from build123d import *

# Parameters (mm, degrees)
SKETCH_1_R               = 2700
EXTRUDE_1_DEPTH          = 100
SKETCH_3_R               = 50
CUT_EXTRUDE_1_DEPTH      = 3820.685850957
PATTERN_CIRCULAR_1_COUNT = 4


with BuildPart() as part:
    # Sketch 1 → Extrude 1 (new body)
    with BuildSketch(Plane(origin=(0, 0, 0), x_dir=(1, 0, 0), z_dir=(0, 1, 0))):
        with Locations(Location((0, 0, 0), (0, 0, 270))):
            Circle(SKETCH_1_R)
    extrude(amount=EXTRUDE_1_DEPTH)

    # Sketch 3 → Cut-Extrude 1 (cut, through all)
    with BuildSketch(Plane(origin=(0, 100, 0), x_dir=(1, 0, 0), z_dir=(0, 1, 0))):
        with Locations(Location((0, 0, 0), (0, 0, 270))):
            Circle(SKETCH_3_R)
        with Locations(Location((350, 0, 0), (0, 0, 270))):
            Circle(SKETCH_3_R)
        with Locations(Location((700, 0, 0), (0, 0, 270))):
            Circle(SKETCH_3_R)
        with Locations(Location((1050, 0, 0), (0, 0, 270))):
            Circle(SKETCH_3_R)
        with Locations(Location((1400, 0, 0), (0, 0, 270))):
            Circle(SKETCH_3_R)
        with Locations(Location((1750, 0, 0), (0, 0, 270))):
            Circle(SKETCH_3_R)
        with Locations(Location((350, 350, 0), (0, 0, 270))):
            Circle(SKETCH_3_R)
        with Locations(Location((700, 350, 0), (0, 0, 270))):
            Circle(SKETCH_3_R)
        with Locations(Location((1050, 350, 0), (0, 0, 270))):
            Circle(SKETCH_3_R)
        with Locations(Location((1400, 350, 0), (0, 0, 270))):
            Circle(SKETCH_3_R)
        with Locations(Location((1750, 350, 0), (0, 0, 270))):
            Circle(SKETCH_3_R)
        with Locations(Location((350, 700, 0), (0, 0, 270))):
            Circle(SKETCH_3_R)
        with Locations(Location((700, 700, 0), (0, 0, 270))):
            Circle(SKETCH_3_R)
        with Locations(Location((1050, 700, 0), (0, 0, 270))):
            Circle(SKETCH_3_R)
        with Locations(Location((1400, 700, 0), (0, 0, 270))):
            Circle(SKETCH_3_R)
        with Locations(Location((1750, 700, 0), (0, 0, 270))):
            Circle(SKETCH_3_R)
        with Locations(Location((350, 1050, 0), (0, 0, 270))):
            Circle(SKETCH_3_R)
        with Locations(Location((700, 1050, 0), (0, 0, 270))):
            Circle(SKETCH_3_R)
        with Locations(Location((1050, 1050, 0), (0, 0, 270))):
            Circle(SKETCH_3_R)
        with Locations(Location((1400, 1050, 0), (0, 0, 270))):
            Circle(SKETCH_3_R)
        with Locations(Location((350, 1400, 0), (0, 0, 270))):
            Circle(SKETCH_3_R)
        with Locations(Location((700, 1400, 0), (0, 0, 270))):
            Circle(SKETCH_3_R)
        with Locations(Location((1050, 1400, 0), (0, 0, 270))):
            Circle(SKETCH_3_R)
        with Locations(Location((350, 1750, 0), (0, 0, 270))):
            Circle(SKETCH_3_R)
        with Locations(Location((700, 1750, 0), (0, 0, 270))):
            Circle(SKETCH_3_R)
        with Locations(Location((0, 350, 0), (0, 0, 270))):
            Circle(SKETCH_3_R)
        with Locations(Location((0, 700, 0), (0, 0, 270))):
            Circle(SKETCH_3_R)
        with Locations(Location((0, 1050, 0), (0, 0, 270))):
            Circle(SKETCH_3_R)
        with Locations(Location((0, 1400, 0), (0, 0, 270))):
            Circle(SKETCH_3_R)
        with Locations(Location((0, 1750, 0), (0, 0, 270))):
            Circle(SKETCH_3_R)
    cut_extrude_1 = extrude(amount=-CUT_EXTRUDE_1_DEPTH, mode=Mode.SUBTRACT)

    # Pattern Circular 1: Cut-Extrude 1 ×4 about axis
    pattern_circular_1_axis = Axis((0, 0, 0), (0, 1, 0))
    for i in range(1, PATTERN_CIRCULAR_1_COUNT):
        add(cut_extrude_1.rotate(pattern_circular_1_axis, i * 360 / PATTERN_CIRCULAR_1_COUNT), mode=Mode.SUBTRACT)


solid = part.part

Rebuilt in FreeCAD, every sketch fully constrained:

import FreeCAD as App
import Part
import Sketcher

V = App.Vector

doc = App.newDocument("Part")
body = doc.addObject("PartDesign::Body", "Body")

# Sketch on XZ plane
sketch1 = body.newObject("Sketcher::SketchObject", "Sketch")
sketch1.AttachmentSupport = (doc.getObject("XZ_Plane"), [""])
sketch1.MapMode = "FlatFace"
sketch1.addGeometry(Part.Circle(V(0, 0, 0), V(0, 0, 1), 2700), False)
sketch1.addConstraint(Sketcher.Constraint("Coincident", 0, 3, -1, 1))
sketch1.addConstraint(Sketcher.Constraint("Diameter", 0, 5400.0))
pad1 = body.newObject("PartDesign::Pad", "Pad")
pad1.Profile = sketch1
pad1.Length = 100
pad1.Reversed = True

# Sketch on XZ plane
sketch2 = body.newObject("Sketcher::SketchObject", "Sketch001")
sketch2.AttachmentSupport = (doc.getObject("XZ_Plane"), [""])
sketch2.MapMode = "FlatFace"
sketch2.AttachmentOffset = App.Placement(V(0, 0, -100), App.Rotation())
sketch2.addGeometry(Part.Circle(V(0, 0, 0), V(0, 0, 1), 50), False)
sketch2.addGeometry(Part.Circle(V(350, 0, 0), V(0, 0, 1), 50), False)
sketch2.addGeometry(Part.Circle(V(700, 0, 0), V(0, 0, 1), 50), False)
sketch2.addGeometry(Part.Circle(V(1050, 0, 0), V(0, 0, 1), 50), False)
sketch2.addGeometry(Part.Circle(V(1400, 0, 0), V(0, 0, 1), 50), False)
sketch2.addGeometry(Part.Circle(V(1750, 0, 0), V(0, 0, 1), 50), False)
sketch2.addGeometry(Part.Circle(V(350, -350, 0), V(0, 0, 1), 50), False)
sketch2.addGeometry(Part.Circle(V(700, -350, 0), V(0, 0, 1), 50), False)
sketch2.addGeometry(Part.Circle(V(1050, -350, 0), V(0, 0, 1), 50), False)
sketch2.addGeometry(Part.Circle(V(1400, -350, 0), V(0, 0, 1), 50), False)
sketch2.addGeometry(Part.Circle(V(1750, -350, 0), V(0, 0, 1), 50), False)
sketch2.addGeometry(Part.Circle(V(350, -700, 0), V(0, 0, 1), 50), False)
sketch2.addGeometry(Part.Circle(V(700, -700, 0), V(0, 0, 1), 50), False)
sketch2.addGeometry(Part.Circle(V(1050, -700, 0), V(0, 0, 1), 50), False)
sketch2.addGeometry(Part.Circle(V(1400, -700, 0), V(0, 0, 1), 50), False)
sketch2.addGeometry(Part.Circle(V(1750, -700, 0), V(0, 0, 1), 50), False)
sketch2.addGeometry(Part.Circle(V(350, -1050, 0), V(0, 0, 1), 50), False)
sketch2.addGeometry(Part.Circle(V(700, -1050, 0), V(0, 0, 1), 50), False)
sketch2.addGeometry(Part.Circle(V(1050, -1050, 0), V(0, 0, 1), 50), False)
sketch2.addGeometry(Part.Circle(V(1400, -1050, 0), V(0, 0, 1), 50), False)
sketch2.addGeometry(Part.Circle(V(350, -1400, 0), V(0, 0, 1), 50), False)
sketch2.addGeometry(Part.Circle(V(700, -1400, 0), V(0, 0, 1), 50), False)
sketch2.addGeometry(Part.Circle(V(1050, -1400, 0), V(0, 0, 1), 50), False)
sketch2.addGeometry(Part.Circle(V(350, -1750, 0), V(0, 0, 1), 50), False)
sketch2.addGeometry(Part.Circle(V(700, -1750, 0), V(0, 0, 1), 50), False)
sketch2.addGeometry(Part.Circle(V(0, -350, 0), V(0, 0, 1), 50), False)
sketch2.addGeometry(Part.Circle(V(0, -700, 0), V(0, 0, 1), 50), False)
sketch2.addGeometry(Part.Circle(V(0, -1050, 0), V(0, 0, 1), 50), False)
sketch2.addGeometry(Part.Circle(V(0, -1400, 0), V(0, 0, 1), 50), False)
sketch2.addGeometry(Part.Circle(V(0, -1750, 0), V(0, 0, 1), 50), False)
sketch2.addConstraint(Sketcher.Constraint("Coincident", 0, 3, -1, 1))
sketch2.addConstraint(Sketcher.Constraint("Equal", 0, 1))
sketch2.addConstraint(Sketcher.Constraint("Equal", 1, 2))
sketch2.addConstraint(Sketcher.Constraint("Equal", 2, 3))
sketch2.addConstraint(Sketcher.Constraint("Equal", 3, 4))
sketch2.addConstraint(Sketcher.Constraint("Equal", 4, 5))
sketch2.addConstraint(Sketcher.Constraint("Equal", 5, 6))
sketch2.addConstraint(Sketcher.Constraint("Equal", 6, 7))
sketch2.addConstraint(Sketcher.Constraint("Equal", 7, 8))
sketch2.addConstraint(Sketcher.Constraint("Equal", 8, 9))
sketch2.addConstraint(Sketcher.Constraint("Equal", 9, 10))
sketch2.addConstraint(Sketcher.Constraint("Equal", 10, 11))
sketch2.addConstraint(Sketcher.Constraint("Equal", 11, 12))
sketch2.addConstraint(Sketcher.Constraint("Equal", 12, 13))
sketch2.addConstraint(Sketcher.Constraint("Equal", 13, 14))
sketch2.addConstraint(Sketcher.Constraint("Equal", 14, 15))
sketch2.addConstraint(Sketcher.Constraint("Equal", 15, 16))
sketch2.addConstraint(Sketcher.Constraint("Equal", 16, 17))
sketch2.addConstraint(Sketcher.Constraint("Equal", 17, 18))
sketch2.addConstraint(Sketcher.Constraint("Equal", 18, 19))
sketch2.addConstraint(Sketcher.Constraint("Equal", 19, 20))
sketch2.addConstraint(Sketcher.Constraint("Equal", 20, 21))
sketch2.addConstraint(Sketcher.Constraint("Equal", 21, 22))
sketch2.addConstraint(Sketcher.Constraint("Equal", 22, 23))
sketch2.addConstraint(Sketcher.Constraint("Equal", 23, 24))
sketch2.addConstraint(Sketcher.Constraint("Equal", 24, 25))
sketch2.addConstraint(Sketcher.Constraint("Equal", 25, 26))
sketch2.addConstraint(Sketcher.Constraint("Equal", 26, 27))
sketch2.addConstraint(Sketcher.Constraint("Equal", 27, 28))
sketch2.addConstraint(Sketcher.Constraint("Equal", 28, 29))
sketch2.addConstraint(Sketcher.Constraint("PointOnObject", 1, 3, -1))
sketch2.addConstraint(Sketcher.Constraint("PointOnObject", 2, 3, -1))
sketch2.addConstraint(Sketcher.Constraint("PointOnObject", 3, 3, -1))
sketch2.addConstraint(Sketcher.Constraint("PointOnObject", 4, 3, -1))
sketch2.addConstraint(Sketcher.Constraint("PointOnObject", 5, 3, -1))
sketch2.addConstraint(Sketcher.Constraint("PointOnObject", 25, 3, -2))
sketch2.addConstraint(Sketcher.Constraint("PointOnObject", 26, 3, -2))
sketch2.addConstraint(Sketcher.Constraint("PointOnObject", 27, 3, -2))
sketch2.addConstraint(Sketcher.Constraint("PointOnObject", 28, 3, -2))
sketch2.addConstraint(Sketcher.Constraint("PointOnObject", 29, 3, -2))
sketch2.addConstraint(Sketcher.Constraint("Horizontal", 6, 3, 7, 3))
sketch2.addConstraint(Sketcher.Constraint("Horizontal", 7, 3, 8, 3))
sketch2.addConstraint(Sketcher.Constraint("Horizontal", 8, 3, 9, 3))
sketch2.addConstraint(Sketcher.Constraint("Horizontal", 9, 3, 10, 3))
sketch2.addConstraint(Sketcher.Constraint("Horizontal", 11, 3, 12, 3))
sketch2.addConstraint(Sketcher.Constraint("Horizontal", 12, 3, 13, 3))
sketch2.addConstraint(Sketcher.Constraint("Horizontal", 13, 3, 14, 3))
sketch2.addConstraint(Sketcher.Constraint("Horizontal", 14, 3, 15, 3))
sketch2.addConstraint(Sketcher.Constraint("Horizontal", 16, 3, 17, 3))
sketch2.addConstraint(Sketcher.Constraint("Horizontal", 17, 3, 18, 3))
sketch2.addConstraint(Sketcher.Constraint("Horizontal", 18, 3, 19, 3))
sketch2.addConstraint(Sketcher.Constraint("Horizontal", 20, 3, 21, 3))
sketch2.addConstraint(Sketcher.Constraint("Horizontal", 21, 3, 22, 3))
sketch2.addConstraint(Sketcher.Constraint("Horizontal", 23, 3, 24, 3))
sketch2.addConstraint(Sketcher.Constraint("Horizontal", 10, 3, 25, 3))
sketch2.addConstraint(Sketcher.Constraint("Horizontal", 15, 3, 26, 3))
sketch2.addConstraint(Sketcher.Constraint("Horizontal", 19, 3, 27, 3))
sketch2.addConstraint(Sketcher.Constraint("Horizontal", 22, 3, 28, 3))
sketch2.addConstraint(Sketcher.Constraint("Horizontal", 24, 3, 29, 3))
sketch2.addConstraint(Sketcher.Constraint("Vertical", 1, 3, 6, 3))
sketch2.addConstraint(Sketcher.Constraint("Vertical", 2, 3, 7, 3))
sketch2.addConstraint(Sketcher.Constraint("Vertical", 3, 3, 8, 3))
sketch2.addConstraint(Sketcher.Constraint("Vertical", 4, 3, 9, 3))
sketch2.addConstraint(Sketcher.Constraint("Vertical", 5, 3, 10, 3))
sketch2.addConstraint(Sketcher.Constraint("Vertical", 6, 3, 11, 3))
sketch2.addConstraint(Sketcher.Constraint("Vertical", 7, 3, 12, 3))
sketch2.addConstraint(Sketcher.Constraint("Vertical", 8, 3, 13, 3))
sketch2.addConstraint(Sketcher.Constraint("Vertical", 9, 3, 14, 3))
sketch2.addConstraint(Sketcher.Constraint("Vertical", 10, 3, 15, 3))
sketch2.addConstraint(Sketcher.Constraint("Vertical", 11, 3, 16, 3))
sketch2.addConstraint(Sketcher.Constraint("Vertical", 12, 3, 17, 3))
sketch2.addConstraint(Sketcher.Constraint("Vertical", 13, 3, 18, 3))
sketch2.addConstraint(Sketcher.Constraint("Vertical", 14, 3, 19, 3))
sketch2.addConstraint(Sketcher.Constraint("Vertical", 16, 3, 20, 3))
sketch2.addConstraint(Sketcher.Constraint("Vertical", 17, 3, 21, 3))
sketch2.addConstraint(Sketcher.Constraint("Vertical", 18, 3, 22, 3))
sketch2.addConstraint(Sketcher.Constraint("Vertical", 20, 3, 23, 3))
sketch2.addConstraint(Sketcher.Constraint("Vertical", 21, 3, 24, 3))
sketch2.addConstraint(Sketcher.Constraint("Diameter", 0, 100.0))
sketch2.addConstraint(Sketcher.Constraint("DistanceX", -1, 1, 1, 3, 350.0))
sketch2.addConstraint(Sketcher.Constraint("DistanceX", -1, 1, 2, 3, 700.0))
sketch2.addConstraint(Sketcher.Constraint("DistanceX", -1, 1, 3, 3, 1050.0))
sketch2.addConstraint(Sketcher.Constraint("DistanceX", -1, 1, 4, 3, 1400.0))
sketch2.addConstraint(Sketcher.Constraint("DistanceX", -1, 1, 5, 3, 1750.0))
sketch2.addConstraint(Sketcher.Constraint("DistanceY", 6, 3, -1, 1, 350.0))
sketch2.addConstraint(Sketcher.Constraint("DistanceY", 11, 3, -1, 1, 700.0))
sketch2.addConstraint(Sketcher.Constraint("DistanceY", 16, 3, -1, 1, 1050.0))
sketch2.addConstraint(Sketcher.Constraint("DistanceY", 20, 3, -1, 1, 1400.0))
sketch2.addConstraint(Sketcher.Constraint("DistanceY", 23, 3, -1, 1, 1750.0))
pocket1 = body.newObject("PartDesign::Pocket", "Pocket")
pocket1.Profile = sketch2
pocket1.Type = "ThroughAll"
pocket1.Reversed = True
doc.recompute()

polarpattern = body.newObject("PartDesign::PolarPattern", "PolarPattern")
polarpattern.Originals = [pocket1]
polarpattern.Axis = (doc.getObject("Y_Axis"), [""])
polarpattern.Angle = 360
polarpattern.Occurrences = 4
body.Tip = polarpattern

doc.recompute()
